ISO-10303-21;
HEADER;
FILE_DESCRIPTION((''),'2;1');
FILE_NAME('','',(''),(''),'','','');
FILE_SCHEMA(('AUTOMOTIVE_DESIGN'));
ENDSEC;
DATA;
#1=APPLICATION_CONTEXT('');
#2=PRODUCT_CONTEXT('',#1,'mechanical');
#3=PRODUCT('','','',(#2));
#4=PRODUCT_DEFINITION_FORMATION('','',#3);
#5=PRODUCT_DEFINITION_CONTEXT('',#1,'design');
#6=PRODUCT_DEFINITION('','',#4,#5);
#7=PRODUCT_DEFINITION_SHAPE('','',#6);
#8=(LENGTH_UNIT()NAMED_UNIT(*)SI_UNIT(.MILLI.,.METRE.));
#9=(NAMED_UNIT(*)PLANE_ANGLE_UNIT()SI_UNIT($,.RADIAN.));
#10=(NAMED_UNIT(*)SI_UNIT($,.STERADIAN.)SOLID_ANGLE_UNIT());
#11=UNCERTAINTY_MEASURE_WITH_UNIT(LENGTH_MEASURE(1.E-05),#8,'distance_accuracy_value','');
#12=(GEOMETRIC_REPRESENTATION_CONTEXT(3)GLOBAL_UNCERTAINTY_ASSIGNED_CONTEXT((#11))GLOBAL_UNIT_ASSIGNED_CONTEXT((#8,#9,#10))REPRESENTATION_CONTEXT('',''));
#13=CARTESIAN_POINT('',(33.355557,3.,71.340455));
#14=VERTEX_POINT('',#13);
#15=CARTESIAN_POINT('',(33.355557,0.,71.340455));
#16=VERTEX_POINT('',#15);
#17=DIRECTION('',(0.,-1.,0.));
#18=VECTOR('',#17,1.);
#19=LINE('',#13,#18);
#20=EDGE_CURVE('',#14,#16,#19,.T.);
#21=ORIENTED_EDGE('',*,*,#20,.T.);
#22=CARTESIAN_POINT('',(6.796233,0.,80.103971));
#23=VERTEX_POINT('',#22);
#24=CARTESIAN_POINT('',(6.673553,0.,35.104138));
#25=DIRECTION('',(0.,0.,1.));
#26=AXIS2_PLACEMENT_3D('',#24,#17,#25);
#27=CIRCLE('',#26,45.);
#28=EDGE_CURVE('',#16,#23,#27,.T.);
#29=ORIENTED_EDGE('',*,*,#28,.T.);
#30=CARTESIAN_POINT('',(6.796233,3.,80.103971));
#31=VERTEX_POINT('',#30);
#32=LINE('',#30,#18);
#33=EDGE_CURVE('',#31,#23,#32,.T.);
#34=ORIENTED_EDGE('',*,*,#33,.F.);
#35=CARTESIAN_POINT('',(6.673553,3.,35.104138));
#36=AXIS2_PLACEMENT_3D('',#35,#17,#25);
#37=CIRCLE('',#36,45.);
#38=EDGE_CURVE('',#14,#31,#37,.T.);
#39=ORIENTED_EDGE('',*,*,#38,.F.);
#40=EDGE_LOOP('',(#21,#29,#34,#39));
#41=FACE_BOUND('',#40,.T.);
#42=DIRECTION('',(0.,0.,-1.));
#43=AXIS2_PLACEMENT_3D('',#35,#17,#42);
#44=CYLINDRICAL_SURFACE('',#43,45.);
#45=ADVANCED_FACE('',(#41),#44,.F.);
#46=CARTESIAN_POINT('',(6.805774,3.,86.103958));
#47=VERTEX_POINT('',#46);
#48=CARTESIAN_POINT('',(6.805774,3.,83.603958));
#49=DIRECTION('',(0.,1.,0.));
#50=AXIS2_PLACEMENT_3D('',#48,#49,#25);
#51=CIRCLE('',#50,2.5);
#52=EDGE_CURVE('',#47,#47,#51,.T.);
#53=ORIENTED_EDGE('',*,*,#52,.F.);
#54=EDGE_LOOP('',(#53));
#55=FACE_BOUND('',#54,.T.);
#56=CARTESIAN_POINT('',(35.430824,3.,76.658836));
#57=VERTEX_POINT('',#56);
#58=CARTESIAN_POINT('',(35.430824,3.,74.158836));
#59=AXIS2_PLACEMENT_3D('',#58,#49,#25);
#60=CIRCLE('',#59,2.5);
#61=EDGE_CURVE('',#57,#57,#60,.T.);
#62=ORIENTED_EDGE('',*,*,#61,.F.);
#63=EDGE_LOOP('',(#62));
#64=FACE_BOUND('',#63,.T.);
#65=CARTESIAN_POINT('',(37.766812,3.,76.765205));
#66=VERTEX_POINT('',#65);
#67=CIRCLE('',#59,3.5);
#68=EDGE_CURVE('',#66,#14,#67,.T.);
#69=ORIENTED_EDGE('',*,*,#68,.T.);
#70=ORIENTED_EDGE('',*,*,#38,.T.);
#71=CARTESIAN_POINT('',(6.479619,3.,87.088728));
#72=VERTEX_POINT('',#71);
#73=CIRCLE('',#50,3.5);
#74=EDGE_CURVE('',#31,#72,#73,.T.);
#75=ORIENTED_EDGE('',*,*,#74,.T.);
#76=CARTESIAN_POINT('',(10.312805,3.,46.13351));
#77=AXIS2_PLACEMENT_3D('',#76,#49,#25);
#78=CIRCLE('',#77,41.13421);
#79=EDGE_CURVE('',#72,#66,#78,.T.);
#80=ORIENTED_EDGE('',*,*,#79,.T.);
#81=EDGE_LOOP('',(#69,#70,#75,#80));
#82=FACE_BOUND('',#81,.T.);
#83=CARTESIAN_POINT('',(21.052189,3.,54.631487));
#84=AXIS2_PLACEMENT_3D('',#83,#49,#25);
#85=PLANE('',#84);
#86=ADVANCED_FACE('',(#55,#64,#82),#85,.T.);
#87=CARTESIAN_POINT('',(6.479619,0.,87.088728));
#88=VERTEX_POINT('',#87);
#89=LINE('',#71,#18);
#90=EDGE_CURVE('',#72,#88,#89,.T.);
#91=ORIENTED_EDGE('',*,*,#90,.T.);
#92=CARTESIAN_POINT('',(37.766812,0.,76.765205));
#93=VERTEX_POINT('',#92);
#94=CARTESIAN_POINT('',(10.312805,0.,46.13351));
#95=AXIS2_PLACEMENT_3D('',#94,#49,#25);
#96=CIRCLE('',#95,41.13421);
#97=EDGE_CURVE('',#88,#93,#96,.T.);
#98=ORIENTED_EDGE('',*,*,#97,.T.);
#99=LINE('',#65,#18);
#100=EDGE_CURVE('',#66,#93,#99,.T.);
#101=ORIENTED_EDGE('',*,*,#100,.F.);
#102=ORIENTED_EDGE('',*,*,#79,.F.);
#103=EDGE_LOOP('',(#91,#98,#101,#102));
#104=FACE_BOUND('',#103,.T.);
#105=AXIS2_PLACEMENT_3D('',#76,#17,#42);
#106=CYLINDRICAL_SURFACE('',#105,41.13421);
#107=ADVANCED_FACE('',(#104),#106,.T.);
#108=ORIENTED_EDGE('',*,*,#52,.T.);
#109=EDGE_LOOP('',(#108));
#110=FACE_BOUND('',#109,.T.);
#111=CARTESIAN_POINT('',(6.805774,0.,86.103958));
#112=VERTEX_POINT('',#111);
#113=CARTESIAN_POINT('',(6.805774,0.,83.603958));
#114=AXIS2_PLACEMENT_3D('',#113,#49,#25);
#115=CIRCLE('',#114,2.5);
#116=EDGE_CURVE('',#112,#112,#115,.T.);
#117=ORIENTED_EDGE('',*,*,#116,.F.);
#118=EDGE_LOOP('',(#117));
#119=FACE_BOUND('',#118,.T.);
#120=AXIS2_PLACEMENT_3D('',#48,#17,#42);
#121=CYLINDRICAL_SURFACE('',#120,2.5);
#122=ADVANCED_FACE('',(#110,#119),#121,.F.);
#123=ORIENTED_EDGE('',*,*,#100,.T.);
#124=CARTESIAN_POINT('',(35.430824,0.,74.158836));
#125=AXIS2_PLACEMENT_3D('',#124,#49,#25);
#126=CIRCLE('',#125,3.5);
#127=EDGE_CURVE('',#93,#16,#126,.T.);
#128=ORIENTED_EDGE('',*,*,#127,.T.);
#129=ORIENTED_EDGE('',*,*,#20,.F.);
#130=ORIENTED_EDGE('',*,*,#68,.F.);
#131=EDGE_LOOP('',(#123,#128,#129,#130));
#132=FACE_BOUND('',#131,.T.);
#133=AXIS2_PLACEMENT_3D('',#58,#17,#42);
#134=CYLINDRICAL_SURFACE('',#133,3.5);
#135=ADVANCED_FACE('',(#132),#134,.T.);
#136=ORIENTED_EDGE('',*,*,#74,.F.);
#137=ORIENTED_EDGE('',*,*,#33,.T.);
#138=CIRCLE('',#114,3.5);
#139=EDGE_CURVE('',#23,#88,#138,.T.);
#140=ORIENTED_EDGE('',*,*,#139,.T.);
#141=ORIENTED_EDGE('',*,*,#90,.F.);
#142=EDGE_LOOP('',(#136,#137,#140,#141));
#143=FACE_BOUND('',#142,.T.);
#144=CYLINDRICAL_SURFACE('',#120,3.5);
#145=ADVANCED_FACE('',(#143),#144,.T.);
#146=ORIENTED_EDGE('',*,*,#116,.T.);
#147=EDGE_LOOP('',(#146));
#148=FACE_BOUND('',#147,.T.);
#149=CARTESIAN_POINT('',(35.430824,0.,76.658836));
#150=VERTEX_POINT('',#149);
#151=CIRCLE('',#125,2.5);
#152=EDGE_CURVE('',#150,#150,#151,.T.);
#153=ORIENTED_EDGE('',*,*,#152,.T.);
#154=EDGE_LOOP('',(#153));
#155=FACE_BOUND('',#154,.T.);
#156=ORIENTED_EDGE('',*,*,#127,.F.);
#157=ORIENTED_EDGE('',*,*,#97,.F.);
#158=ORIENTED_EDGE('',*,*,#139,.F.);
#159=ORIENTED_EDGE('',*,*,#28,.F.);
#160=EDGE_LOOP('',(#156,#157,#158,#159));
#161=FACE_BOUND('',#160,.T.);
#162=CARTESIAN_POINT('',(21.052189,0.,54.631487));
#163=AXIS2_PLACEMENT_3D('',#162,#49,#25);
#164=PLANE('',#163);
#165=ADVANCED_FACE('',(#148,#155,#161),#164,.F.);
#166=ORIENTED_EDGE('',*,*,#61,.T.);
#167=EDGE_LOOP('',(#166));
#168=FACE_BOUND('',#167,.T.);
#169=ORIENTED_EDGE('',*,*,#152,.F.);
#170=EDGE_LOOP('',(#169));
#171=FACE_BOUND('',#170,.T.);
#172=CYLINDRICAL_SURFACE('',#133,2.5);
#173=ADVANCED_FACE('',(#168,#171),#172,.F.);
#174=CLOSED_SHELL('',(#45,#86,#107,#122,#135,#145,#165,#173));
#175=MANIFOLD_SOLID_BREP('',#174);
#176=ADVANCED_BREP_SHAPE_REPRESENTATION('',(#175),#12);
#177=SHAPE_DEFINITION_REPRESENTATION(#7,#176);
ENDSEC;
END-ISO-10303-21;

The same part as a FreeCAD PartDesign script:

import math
import FreeCAD as App
import Part
import Sketcher

V = App.Vector
Q = App.Units.Quantity

doc = App.newDocument("Part")
body = doc.addObject("PartDesign::Body", "Body")

sketch1 = body.newObject("Sketcher::SketchObject", "Sketch")
sketch1.AttachmentSupport = (doc.getObject("XZ_Plane"), [""])
sketch1.MapMode = "FlatFace"
sketch1.addGeometry([
    Part.ArcOfCircle(Part.Circle(V(6.8, 83.6, 0), V(0, 0, 1), 3.5), math.radians(95), math.radians(270)),
    Part.ArcOfCircle(Part.Circle(V(10.3, 46.1, 0), V(0, 0, 1), 41.1), math.radians(48), math.radians(95)),
    Part.ArcOfCircle(Part.Circle(V(35.4, 74.2, 0), V(0, 0, 1), 3.5), math.radians(-126), math.radians(48)),
    Part.ArcOfCircle(Part.Circle(V(6.7, 35.1, 0), V(0, 0, 1), 45), math.radians(54), math.radians(90)),
], False)
sketch1.addConstraint([
    Sketcher.Constraint("Tangent", 0, 1, 1, 2),
    Sketcher.Constraint("Tangent", 1, 1, 2, 2),
    Sketcher.Constraint("Tangent", 2, 1, 3, 1),
    Sketcher.Constraint("Tangent", 3, 2, 0, 2),
    Sketcher.Constraint("Equal", 0, 2),
    Sketcher.Constraint("Radius", 3, Q("45 mm")),
    Sketcher.Constraint("Radius", 0, Q("3.5 mm")),
    Sketcher.Constraint("Radius", 1, Q("41.13421 mm")),
    Sketcher.Constraint("DistanceY", -1, 1, 0, 3, Q("83.603958 mm")),
    Sketcher.Constraint("DistanceY", -1, 1, 1, 3, Q("46.13351 mm")),
    Sketcher.Constraint("DistanceX", -1, 1, 0, 1, Q("6.479619 mm")),
    Sketcher.Constraint("DistanceX", 0, 3, 2, 3, Q("28.62505 mm")),
])
pad1 = body.newObject("PartDesign::Pad", "Pad")
pad1.Profile = sketch1
pad1.Length = 3
pad1.Reversed = True

sketch2 = body.newObject("Sketcher::SketchObject", "Sketch001")
sketch2.AttachmentSupport = (doc.getObject("XZ_Plane"), [""])
sketch2.MapMode = "FlatFace"
sketch2.addGeometry([
    Part.Circle(V(6.8, 83.6, 0), V(0, 0, 1), 2.5),
    Part.Circle(V(35.4, 74.2, 0), V(0, 0, 1), 2.5),
], False)
sketch2.addConstraint([
    Sketcher.Constraint("Equal", 0, 1),
    Sketcher.Constraint("Diameter", 0, Q("5 mm")),
    Sketcher.Constraint("DistanceY", -1, 1, 0, 3, Q("83.603958 mm")),
    Sketcher.Constraint("DistanceX", 0, 3, 1, 3, Q("28.62505 mm")),
    Sketcher.Constraint("DistanceX", -1, 1, 0, 3, Q("6.805774 mm")),
    Sketcher.Constraint("DistanceY", -1, 1, 1, 3, Q("74.158836 mm")),
])
pocket1 = body.newObject("PartDesign::Pocket", "Pocket")
pocket1.Profile = sketch2
pocket1.Length = 3

doc.recompute()
